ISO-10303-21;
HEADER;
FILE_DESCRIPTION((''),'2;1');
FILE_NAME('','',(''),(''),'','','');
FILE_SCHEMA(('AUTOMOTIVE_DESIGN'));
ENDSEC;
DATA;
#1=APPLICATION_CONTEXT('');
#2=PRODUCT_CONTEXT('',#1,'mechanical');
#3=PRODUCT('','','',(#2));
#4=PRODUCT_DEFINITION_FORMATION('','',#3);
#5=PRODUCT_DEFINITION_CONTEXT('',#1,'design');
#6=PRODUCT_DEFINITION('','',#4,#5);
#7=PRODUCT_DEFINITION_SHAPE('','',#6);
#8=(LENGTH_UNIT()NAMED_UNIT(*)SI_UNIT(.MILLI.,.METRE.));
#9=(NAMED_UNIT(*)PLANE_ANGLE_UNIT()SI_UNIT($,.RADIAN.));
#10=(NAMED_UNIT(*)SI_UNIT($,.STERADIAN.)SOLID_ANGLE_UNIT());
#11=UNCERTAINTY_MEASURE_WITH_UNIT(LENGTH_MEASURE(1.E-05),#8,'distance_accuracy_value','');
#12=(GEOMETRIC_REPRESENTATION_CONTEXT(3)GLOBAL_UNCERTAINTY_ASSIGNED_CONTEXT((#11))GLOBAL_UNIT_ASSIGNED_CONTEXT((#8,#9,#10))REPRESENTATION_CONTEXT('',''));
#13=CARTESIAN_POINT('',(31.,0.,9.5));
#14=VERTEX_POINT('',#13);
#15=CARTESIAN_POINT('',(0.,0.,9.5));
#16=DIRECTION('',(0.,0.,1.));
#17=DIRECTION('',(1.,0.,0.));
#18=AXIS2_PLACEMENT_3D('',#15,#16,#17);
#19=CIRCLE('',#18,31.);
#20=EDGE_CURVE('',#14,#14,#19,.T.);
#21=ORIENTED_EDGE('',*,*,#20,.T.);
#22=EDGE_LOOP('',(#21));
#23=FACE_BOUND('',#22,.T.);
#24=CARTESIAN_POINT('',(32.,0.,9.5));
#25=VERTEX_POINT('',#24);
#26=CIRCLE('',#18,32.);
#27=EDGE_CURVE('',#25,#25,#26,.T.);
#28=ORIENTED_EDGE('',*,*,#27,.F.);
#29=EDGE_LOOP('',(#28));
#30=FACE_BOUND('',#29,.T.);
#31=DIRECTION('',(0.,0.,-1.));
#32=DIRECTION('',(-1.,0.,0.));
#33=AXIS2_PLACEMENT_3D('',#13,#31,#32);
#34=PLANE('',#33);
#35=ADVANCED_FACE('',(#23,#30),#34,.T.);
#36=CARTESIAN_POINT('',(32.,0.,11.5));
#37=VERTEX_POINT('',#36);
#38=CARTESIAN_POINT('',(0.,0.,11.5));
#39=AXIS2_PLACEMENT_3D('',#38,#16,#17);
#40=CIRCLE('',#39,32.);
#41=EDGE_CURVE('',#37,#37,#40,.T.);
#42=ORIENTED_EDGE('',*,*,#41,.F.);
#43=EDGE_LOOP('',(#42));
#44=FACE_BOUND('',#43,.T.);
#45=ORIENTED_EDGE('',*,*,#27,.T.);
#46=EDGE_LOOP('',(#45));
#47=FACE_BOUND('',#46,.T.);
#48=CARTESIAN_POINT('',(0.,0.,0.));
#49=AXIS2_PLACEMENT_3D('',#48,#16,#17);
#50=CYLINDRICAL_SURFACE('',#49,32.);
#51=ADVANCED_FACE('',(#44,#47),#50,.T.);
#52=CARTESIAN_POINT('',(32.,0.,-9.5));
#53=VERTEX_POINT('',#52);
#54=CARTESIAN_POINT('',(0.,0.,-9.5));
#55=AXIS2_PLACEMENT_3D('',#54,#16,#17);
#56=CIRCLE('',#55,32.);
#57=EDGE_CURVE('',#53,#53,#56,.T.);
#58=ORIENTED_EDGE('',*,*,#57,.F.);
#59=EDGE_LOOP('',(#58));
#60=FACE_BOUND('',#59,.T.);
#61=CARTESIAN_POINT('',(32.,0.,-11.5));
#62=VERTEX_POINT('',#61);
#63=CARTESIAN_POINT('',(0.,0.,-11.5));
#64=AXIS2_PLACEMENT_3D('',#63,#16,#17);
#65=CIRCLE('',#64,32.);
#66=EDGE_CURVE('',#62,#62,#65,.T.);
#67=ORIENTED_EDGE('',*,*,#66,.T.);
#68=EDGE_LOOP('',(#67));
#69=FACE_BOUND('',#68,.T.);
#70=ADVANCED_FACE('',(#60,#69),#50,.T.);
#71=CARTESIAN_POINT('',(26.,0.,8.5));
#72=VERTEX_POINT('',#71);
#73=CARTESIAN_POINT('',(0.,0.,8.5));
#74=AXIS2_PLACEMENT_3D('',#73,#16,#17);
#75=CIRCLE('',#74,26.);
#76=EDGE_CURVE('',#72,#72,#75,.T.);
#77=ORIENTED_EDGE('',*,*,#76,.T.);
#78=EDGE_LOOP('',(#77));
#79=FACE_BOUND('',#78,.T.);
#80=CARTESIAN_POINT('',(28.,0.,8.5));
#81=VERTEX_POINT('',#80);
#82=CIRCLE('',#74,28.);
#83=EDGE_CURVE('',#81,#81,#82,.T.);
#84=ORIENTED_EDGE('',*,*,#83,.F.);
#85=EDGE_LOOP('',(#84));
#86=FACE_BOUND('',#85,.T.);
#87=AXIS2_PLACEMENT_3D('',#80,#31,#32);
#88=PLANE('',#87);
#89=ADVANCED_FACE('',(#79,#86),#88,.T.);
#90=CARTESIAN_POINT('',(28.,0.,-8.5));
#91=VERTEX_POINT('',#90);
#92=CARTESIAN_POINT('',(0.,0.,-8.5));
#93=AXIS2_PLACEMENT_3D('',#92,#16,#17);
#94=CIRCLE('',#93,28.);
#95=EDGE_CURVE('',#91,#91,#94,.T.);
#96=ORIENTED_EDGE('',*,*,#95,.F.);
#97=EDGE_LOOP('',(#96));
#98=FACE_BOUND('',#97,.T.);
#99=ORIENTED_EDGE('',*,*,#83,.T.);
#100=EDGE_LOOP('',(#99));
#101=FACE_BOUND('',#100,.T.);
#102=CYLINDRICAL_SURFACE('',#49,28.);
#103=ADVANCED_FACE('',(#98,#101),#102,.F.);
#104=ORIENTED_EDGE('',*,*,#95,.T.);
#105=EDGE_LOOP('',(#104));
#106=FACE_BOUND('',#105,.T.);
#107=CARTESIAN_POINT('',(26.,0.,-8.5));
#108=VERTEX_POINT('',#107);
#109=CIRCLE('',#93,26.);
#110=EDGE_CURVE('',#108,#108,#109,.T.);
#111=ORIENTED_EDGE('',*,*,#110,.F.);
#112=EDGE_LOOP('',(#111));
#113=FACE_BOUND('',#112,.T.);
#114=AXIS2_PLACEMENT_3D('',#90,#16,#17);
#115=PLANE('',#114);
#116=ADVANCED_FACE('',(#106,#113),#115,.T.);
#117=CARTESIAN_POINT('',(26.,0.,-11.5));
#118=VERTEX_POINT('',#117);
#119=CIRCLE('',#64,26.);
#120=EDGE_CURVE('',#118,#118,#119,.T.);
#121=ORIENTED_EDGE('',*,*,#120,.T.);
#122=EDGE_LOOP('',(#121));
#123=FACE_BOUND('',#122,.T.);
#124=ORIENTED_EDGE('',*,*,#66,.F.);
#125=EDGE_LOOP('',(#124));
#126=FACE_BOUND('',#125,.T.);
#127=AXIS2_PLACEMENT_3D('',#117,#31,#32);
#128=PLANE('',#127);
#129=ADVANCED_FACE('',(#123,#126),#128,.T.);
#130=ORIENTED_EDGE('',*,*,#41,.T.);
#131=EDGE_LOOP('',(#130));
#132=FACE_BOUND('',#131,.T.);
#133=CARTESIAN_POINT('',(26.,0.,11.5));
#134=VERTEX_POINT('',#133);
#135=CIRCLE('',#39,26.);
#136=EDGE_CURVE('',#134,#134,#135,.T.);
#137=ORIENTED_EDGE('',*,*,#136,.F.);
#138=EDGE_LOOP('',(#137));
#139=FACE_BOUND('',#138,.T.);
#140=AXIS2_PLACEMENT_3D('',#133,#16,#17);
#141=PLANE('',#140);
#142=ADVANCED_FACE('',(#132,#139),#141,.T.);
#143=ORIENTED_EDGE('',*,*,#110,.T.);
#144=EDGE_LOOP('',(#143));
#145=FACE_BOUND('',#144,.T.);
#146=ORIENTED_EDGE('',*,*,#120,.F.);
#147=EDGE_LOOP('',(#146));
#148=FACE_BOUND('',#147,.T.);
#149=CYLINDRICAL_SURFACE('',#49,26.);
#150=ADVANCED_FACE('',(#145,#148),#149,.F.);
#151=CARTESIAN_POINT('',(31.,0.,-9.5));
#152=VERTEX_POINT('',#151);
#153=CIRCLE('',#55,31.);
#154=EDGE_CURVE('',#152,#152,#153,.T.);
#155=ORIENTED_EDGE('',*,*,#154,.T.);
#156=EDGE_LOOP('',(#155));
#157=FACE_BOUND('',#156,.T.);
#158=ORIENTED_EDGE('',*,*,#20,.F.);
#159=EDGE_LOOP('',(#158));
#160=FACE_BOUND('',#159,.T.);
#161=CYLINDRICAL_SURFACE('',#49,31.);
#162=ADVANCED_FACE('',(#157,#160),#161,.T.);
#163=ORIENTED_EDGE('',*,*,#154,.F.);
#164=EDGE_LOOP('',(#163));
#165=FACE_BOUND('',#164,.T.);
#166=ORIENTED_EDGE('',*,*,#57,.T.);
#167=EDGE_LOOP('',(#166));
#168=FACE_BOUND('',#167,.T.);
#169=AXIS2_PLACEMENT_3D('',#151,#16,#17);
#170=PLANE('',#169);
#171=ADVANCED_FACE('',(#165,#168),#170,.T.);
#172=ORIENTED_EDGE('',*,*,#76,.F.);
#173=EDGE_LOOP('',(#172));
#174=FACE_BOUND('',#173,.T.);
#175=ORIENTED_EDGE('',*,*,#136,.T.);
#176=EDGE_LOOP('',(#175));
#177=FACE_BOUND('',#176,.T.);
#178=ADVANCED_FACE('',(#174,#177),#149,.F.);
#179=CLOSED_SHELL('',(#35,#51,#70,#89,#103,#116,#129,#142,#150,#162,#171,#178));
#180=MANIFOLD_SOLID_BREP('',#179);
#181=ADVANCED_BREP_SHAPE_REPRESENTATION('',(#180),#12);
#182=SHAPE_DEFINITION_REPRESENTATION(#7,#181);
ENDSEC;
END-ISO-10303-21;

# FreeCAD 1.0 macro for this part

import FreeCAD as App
import Part
import Sketcher

V = App.Vector
Q = App.Units.Quantity


def add_polygon(sketch, points):
    """Adds a closed chain of lines whose ends are joined by coincident constraints."""
    first, n = sketch.GeometryCount, len(points)
    for a, b in zip(points, points[1:] + points[:1]):
        sketch.addGeometry(Part.LineSegment(App.Vector(*a, 0), App.Vector(*b, 0)), False)
    for i in range(n):
        sketch.addConstraint(Sketcher.Constraint("Coincident", first + i, 2, first + (i + 1) % n, 1))

doc = App.newDocument("Part")
params = doc.addObject("Spreadsheet::Sheet", "Params")
for row, (alias, value) in enumerate([
    ("sketch1_width", "6 mm"),
    ("sketch1_width2", "2 mm"),
    ("sketch1_width3", "1 mm"),
    ("sketch1_height", "3 mm"),
    ("sketch1_height2", "17 mm"),
    ("revolution_angle", "360 deg"),
], start=1):
    params.set(f"A{row}", alias)
    params.set(f"B{row}", "=" + value)
    params.setAlias(f"B{row}", alias)

body = doc.addObject("PartDesign::Body", "Body")

sketch1 = body.newObject("Sketcher::SketchObject", "Sketch")
sketch1.AttachmentSupport = (doc.getObject("XZ_Plane"), [""])
sketch1.MapMode = "FlatFace"
add_polygon(sketch1, [(32, -11.5), (26, -11.5), (26, -8.5), (28, -8.5), (28, 8.5), (26, 8.5), (26, 11.5), (32, 11.5), (32, 9.5), (31, 9.5), (31, -9.5), (32, -9.5)])
sketch1.addConstraint([
    Sketcher.Constraint("Horizontal", 0),
    Sketcher.Constraint("Vertical", 1),
    Sketcher.Constraint("Horizontal", 2),
    Sketcher.Constraint("Vertical", 3),
    Sketcher.Constraint("Horizontal", 4),
    Sketcher.Constraint("Vertical", 5),
    Sketcher.Constraint("Horizontal", 6),
    Sketcher.Constraint("Vertical", 7),
    Sketcher.Constraint("Horizontal", 8),
    Sketcher.Constraint("Vertical", 9),
    Sketcher.Constraint("Horizontal", 10),
    Sketcher.Constraint("Vertical", 11),
    Sketcher.Constraint("Symmetric", 1, 2, 4, 2, -1),
    Sketcher.Constraint("Symmetric", 7, 2, 10, 2, -1),
    Sketcher.Constraint("Equal", 1, 5),
    Sketcher.Constraint("Equal", 4, 7),
    Sketcher.Constraint("DistanceX", 0, 2, 0, 1, Q("6 mm")),
    Sketcher.Constraint("DistanceX", 2, 1, 2, 2, Q("2 mm")),
    Sketcher.Constraint("DistanceX", 8, 2, 8, 1, Q("1 mm")),
    Sketcher.Constraint("DistanceY", 1, 1, 1, 2, Q("3 mm")),
    Sketcher.Constraint("DistanceY", 3, 1, 3, 2, Q("17 mm")),
    Sketcher.Constraint("DistanceX", -1, 1, 0, 2, Q("26 mm")),
])
sketch1.setExpression("Constraints[28]", "Params.sketch1_width")
sketch1.setExpression("Constraints[29]", "Params.sketch1_width2")
sketch1.setExpression("Constraints[30]", "Params.sketch1_width3")
sketch1.setExpression("Constraints[31]", "Params.sketch1_height")
sketch1.setExpression("Constraints[32]", "Params.sketch1_height2")
revolution = body.newObject("PartDesign::Revolution", "Revolution")
revolution.Profile = sketch1
revolution.ReferenceAxis = (sketch1, ["V_Axis"])
revolution.setExpression("Angle", "Params.revolution_angle")

doc.recompute()
